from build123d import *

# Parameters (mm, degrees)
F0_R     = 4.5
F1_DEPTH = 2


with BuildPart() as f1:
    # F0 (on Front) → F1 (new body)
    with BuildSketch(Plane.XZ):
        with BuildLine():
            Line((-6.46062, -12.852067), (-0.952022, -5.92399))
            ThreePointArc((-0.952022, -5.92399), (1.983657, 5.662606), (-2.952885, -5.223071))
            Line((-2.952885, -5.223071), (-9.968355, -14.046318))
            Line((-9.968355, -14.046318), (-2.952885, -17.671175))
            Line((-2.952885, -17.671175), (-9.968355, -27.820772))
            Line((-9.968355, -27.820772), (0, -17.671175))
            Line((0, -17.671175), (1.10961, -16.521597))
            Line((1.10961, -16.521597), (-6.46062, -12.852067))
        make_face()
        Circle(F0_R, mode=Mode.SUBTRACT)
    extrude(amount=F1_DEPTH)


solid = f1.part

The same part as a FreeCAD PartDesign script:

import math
import FreeCAD as App
import Part
import Sketcher
from FreeCAD import Vector

doc = App.newDocument("Part")
body = doc.addObject("PartDesign::Body", "Body")

sketch1 = body.newObject("Sketcher::SketchObject", "Sketch")
sketch1.AttachmentSupport = (doc.getObject("XZ_Plane"), [""])
sketch1.MapMode = "FlatFace"
sketch1.addGeometry(Part.LineSegment(Vector(-6.5, -12.9, 0), Vector(-1, -5.9, 0)), False)
sketch1.addGeometry(Part.ArcOfCircle(Part.Circle(Vector(0, 0, 0), Vector(0, 0, 1), 6), math.radians(-99), math.radians(241)), False)
sketch1.addGeometry(Part.LineSegment(Vector(-3, -5.2, 0), Vector(-10, -14, 0)), False)
sketch1.addGeometry(Part.LineSegment(Vector(-10, -14, 0), Vector(-3, -17.7, 0)), False)
sketch1.addGeometry(Part.LineSegment(Vector(-3, -17.7, 0), Vector(-10, -27.8, 0)), False)
sketch1.addGeometry(Part.LineSegment(Vector(-10, -27.8, 0), Vector(0, -17.7, 0)), False)
sketch1.addGeometry(Part.LineSegment(Vector(0, -17.7, 0), Vector(1.1, -16.5, 0)), False)
sketch1.addGeometry(Part.LineSegment(Vector(1.1, -16.5, 0), Vector(-6.5, -12.9, 0)), False)
sketch1.addGeometry(Part.Circle(Vector(0, 0, 0), Vector(0, 0, 1), 4.5), False)
sketch1.addConstraint(Sketcher.Constraint("Coincident", 0, 2, 1, 1))
sketch1.addConstraint(Sketcher.Constraint("Coincident", 1, 2, 2, 1))
sketch1.addConstraint(Sketcher.Constraint("Coincident", 2, 2, 3, 1))
sketch1.addConstraint(Sketcher.Constraint("Coincident", 3, 2, 4, 1))
sketch1.addConstraint(Sketcher.Constraint("Coincident", 4, 2, 5, 1))
sketch1.addConstraint(Sketcher.Constraint("Coincident", 5, 2, 6, 1))
sketch1.addConstraint(Sketcher.Constraint("Coincident", 6, 2, 7, 1))
sketch1.addConstraint(Sketcher.Constraint("Coincident", 7, 2, 0, 1))
sketch1.addConstraint(Sketcher.Constraint("Coincident", 1, 3, -1, 1))
sketch1.addConstraint(Sketcher.Constraint("Coincident", 8, 3, -1, 1))
sketch1.addConstraint(Sketcher.Constraint("PointOnObject", 5, 2, -2))
sketch1.addConstraint(Sketcher.Constraint("Parallel", 0, 2))
sketch1.addConstraint(Sketcher.Constraint("Horizontal", 3, 2, 5, 2))
sketch1.addConstraint(Sketcher.Constraint("Vertical", 1, 2, 3, 2))
sketch1.addConstraint(Sketcher.Constraint("Vertical", 2, 2, 4, 2))
sketch1.addConstraint(Sketcher.Constraint("Diameter", 8, 9.0))
sketch1.addConstraint(Sketcher.Constraint("Radius", 1, 6.0))
sketch1.addConstraint(Sketcher.Constraint("Distance", 4, 12.338198))
sketch1.addConstraint(Sketcher.Constraint("DistanceY", 4, 2, 1, 2, 22.597701))
sketch1.addConstraint(Sketcher.Constraint("Distance", 2, 11.272378))
sketch1.addConstraint(Sketcher.Constraint("Distance", 7, 8.412719))
sketch1.addConstraint(Sketcher.Constraint("DistanceY", 0, 2, -1, 1, 5.92399))
sketch1.addConstraint(Sketcher.Constraint("DistanceY", 1, 2, -1, 1, 5.223071))
sketch1.addConstraint(Sketcher.Constraint("DistanceX", -1, 1, 6, 2, 1.10961))
sketch1.addConstraint(Sketcher.Constraint("DistanceX", 7, 2, -1, 1, 6.46062))
sketch1.addConstraint(Sketcher.Constraint("DistanceX", 2, 2, 1, 2, 7.01547))
pad1 = body.newObject("PartDesign::Pad", "Pad")
pad1.Profile = sketch1
pad1.Length = 2

doc.recompute()
